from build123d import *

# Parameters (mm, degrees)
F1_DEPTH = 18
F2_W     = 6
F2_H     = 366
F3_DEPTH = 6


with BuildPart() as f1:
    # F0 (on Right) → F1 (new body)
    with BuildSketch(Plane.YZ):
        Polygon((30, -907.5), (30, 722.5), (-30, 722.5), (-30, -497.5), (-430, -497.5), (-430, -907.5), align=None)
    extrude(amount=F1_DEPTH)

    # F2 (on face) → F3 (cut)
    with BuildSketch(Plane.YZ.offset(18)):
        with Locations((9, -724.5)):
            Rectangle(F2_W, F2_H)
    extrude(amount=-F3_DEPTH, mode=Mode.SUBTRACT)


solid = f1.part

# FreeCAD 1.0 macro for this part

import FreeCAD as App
import Part
import Sketcher
from FreeCAD import Vector
Q = App.Units.Quantity


def add_polygon(sketch, points):
    """Adds a closed chain of lines whose ends are joined by coincident constraints."""
    first, n = sketch.GeometryCount, len(points)
    for a, b in zip(points, points[1:] + points[:1]):
        sketch.addGeometry(Part.LineSegment(App.Vector(*a, 0), App.Vector(*b, 0)), False)
    for i in range(n):
        sketch.addConstraint(Sketcher.Constraint("Coincident", first + i, 2, first + (i + 1) % n, 1))

doc = App.newDocument("Part")
body = doc.addObject("PartDesign::Body", "Body")

sketch1 = body.newObject("Sketcher::SketchObject", "Sketch")
sketch1.AttachmentSupport = (doc.getObject("YZ_Plane"), [""])
sketch1.MapMode = "FlatFace"
add_polygon(sketch1, [(30, -908), (30, 722), (-30, 722), (-30, -498), (-430, -498), (-430, -908)])
sketch1.addConstraint(Sketcher.Constraint("Vertical", 0))
sketch1.addConstraint(Sketcher.Constraint("Horizontal", 1))
sketch1.addConstraint(Sketcher.Constraint("Vertical", 2))
sketch1.addConstraint(Sketcher.Constraint("Horizontal", 3))
sketch1.addConstraint(Sketcher.Constraint("Vertical", 4))
sketch1.addConstraint(Sketcher.Constraint("Horizontal", 5))
sketch1.addConstraint(Sketcher.Constraint("DistanceX", 1, 2, 1, 1, Q("60 mm")))
sketch1.addConstraint(Sketcher.Constraint("DistanceX", 3, 2, 3, 1, Q("400 mm")))
sketch1.addConstraint(Sketcher.Constraint("DistanceY", 0, 1, 0, 2, Q("1630 mm")))
sketch1.addConstraint(Sketcher.Constraint("DistanceY", 2, 2, 2, 1, Q("1220 mm")))
sketch1.addConstraint(Sketcher.Constraint("DistanceX", -1, 1, 0, 2, Q("30 mm")))
sketch1.addConstraint(Sketcher.Constraint("DistanceY", -1, 1, 0, 2, Q("722.5 mm")))
pad1 = body.newObject("PartDesign::Pad", "Pad")
pad1.Profile = sketch1
pad1.Length = 18

sketch2 = body.newObject("Sketcher::SketchObject", "Sketch001")
sketch2.AttachmentSupport = (doc.getObject("YZ_Plane"), [""])
sketch2.MapMode = "FlatFace"
sketch2.AttachmentOffset = App.Placement(Vector(0, 0, 18), App.Rotation())
add_polygon(sketch2, [(6, -542), (6, -908), (12, -908), (12, -542)])
sketch2.addConstraint(Sketcher.Constraint("Vertical", 0))
sketch2.addConstraint(Sketcher.Constraint("Horizontal", 1))
sketch2.addConstraint(Sketcher.Constraint("Vertical", 2))
sketch2.addConstraint(Sketcher.Constraint("Horizontal", 3))
sketch2.addConstraint(Sketcher.Constraint("DistanceX", 1, 1, 1, 2, Q("6 mm")))
sketch2.addConstraint(Sketcher.Constraint("DistanceY", 0, 2, 0, 1, Q("366 mm")))
sketch2.addConstraint(Sketcher.Constraint("DistanceX", -1, 1, 0, 2, Q("6 mm")))
sketch2.addConstraint(Sketcher.Constraint("DistanceY", 0, 2, -1, 1, Q("907.5 mm")))
pocket1 = body.newObject("PartDesign::Pocket", "Pocket")
pocket1.Profile = sketch2
pocket1.Length = 6

doc.recompute()
